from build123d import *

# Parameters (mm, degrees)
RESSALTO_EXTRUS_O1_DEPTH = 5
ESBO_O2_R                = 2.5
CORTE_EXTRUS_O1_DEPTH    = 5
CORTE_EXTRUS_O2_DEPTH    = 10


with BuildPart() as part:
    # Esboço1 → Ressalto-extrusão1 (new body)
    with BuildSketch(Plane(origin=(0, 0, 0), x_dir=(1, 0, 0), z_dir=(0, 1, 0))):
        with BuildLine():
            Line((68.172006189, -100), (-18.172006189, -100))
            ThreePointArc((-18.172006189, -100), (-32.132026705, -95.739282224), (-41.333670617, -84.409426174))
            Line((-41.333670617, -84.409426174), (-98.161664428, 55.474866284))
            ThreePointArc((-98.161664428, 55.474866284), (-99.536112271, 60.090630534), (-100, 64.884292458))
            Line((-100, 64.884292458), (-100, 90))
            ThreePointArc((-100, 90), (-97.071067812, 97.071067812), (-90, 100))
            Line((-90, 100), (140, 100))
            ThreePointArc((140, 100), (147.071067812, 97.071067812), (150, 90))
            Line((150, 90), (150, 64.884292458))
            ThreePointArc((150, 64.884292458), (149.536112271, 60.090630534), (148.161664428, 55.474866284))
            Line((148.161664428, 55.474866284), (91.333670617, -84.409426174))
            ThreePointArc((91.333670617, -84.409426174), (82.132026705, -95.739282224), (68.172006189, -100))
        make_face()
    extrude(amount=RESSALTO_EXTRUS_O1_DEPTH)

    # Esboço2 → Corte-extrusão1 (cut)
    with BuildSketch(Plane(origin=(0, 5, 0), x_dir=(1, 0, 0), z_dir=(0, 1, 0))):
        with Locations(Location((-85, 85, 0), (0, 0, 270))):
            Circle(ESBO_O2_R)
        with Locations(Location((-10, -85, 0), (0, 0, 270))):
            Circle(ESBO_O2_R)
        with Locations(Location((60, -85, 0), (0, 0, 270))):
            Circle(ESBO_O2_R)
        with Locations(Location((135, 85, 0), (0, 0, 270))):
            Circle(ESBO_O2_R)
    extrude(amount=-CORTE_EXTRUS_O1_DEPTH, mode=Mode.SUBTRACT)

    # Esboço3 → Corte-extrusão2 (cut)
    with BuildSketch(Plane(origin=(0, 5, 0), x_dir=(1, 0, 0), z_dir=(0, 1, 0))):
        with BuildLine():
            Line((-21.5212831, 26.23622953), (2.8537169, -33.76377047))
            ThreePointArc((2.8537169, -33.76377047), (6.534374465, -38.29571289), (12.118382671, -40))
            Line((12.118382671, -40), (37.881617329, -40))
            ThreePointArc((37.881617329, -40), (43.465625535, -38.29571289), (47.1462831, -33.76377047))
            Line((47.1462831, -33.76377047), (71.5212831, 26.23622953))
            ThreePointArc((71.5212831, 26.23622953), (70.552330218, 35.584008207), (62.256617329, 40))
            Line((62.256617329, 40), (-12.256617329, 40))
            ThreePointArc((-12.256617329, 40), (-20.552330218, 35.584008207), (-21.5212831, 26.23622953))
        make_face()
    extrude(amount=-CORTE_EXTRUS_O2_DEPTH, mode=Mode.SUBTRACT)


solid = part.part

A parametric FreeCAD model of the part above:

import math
import FreeCAD as App
import Part
import Sketcher
Q = App.Units.Quantity

doc = App.newDocument("Part")
body = doc.addObject("PartDesign::Body", "Body")

# Sketch on XZ plane
sketch1 = body.newObject("Sketcher::SketchObject", "Sketch")
sketch1.AttachmentSupport = (doc.getObject("XZ_Plane"), [""])
sketch1.MapMode = "FlatFace"
sketch1.addGeometry(Part.LineSegment(App.Vector(-18, 100, 0), App.Vector(68, 100, 0)), False)
sketch1.addGeometry(Part.ArcOfCircle(Part.Circle(App.Vector(68, 75, 0), App.Vector(0, 0, 1), 25), math.radians(22), math.radians(90)), False)
sketch1.addGeometry(Part.LineSegment(App.Vector(91, 84, 0), App.Vector(148, -55, 0)), False)
sketch1.addGeometry(Part.ArcOfCircle(Part.Circle(App.Vector(125, -65, 0), App.Vector(0, 0, 1), 25), math.radians(0), math.radians(22)), False)
sketch1.addGeometry(Part.LineSegment(App.Vector(150, -65, 0), App.Vector(150, -90, 0)), False)
sketch1.addGeometry(Part.ArcOfCircle(Part.Circle(App.Vector(140, -90, 0), App.Vector(0, 0, 1), 10), math.radians(-90), math.radians(0)), False)
sketch1.addGeometry(Part.LineSegment(App.Vector(140, -100, 0), App.Vector(-90, -100, 0)), False)
sketch1.addGeometry(Part.ArcOfCircle(Part.Circle(App.Vector(-90, -90, 0), App.Vector(0, 0, 1), 10), math.radians(180), math.radians(270)), False)
sketch1.addGeometry(Part.LineSegment(App.Vector(-100, -90, 0), App.Vector(-100, -65, 0)), False)
sketch1.addGeometry(Part.ArcOfCircle(Part.Circle(App.Vector(-75, -65, 0), App.Vector(0, 0, 1), 25), math.radians(158), math.radians(180)), False)
sketch1.addGeometry(Part.LineSegment(App.Vector(-98, -55, 0), App.Vector(-41, 84, 0)), False)
sketch1.addGeometry(Part.ArcOfCircle(Part.Circle(App.Vector(-18, 75, 0), App.Vector(0, 0, 1), 25), math.radians(90), math.radians(158)), False)
sketch1.addConstraint(Sketcher.Constraint("Tangent", 0, 2, 1, 2))
sketch1.addConstraint(Sketcher.Constraint("Tangent", 1, 1, 2, 1))
sketch1.addConstraint(Sketcher.Constraint("Tangent", 2, 2, 3, 2))
sketch1.addConstraint(Sketcher.Constraint("Tangent", 3, 1, 4, 1))
sketch1.addConstraint(Sketcher.Constraint("Tangent", 4, 2, 5, 2))
sketch1.addConstraint(Sketcher.Constraint("Tangent", 5, 1, 6, 1))
sketch1.addConstraint(Sketcher.Constraint("Tangent", 6, 2, 7, 2))
sketch1.addConstraint(Sketcher.Constraint("Tangent", 7, 1, 8, 1))
sketch1.addConstraint(Sketcher.Constraint("Tangent", 8, 2, 9, 2))
sketch1.addConstraint(Sketcher.Constraint("Tangent", 9, 1, 10, 1))
sketch1.addConstraint(Sketcher.Constraint("Tangent", 10, 2, 11, 2))
sketch1.addConstraint(Sketcher.Constraint("Tangent", 11, 1, 0, 1))
sketch1.addConstraint(Sketcher.Constraint("Horizontal", 0))
sketch1.addConstraint(Sketcher.Constraint("Vertical", 4))
sketch1.addConstraint(Sketcher.Constraint("Horizontal", 6))
sketch1.addConstraint(Sketcher.Constraint("Vertical", 8))
sketch1.addConstraint(Sketcher.Constraint("Equal", 1, 3))
sketch1.addConstraint(Sketcher.Constraint("Equal", 5, 7))
sketch1.addConstraint(Sketcher.Constraint("Equal", 3, 9))
sketch1.addConstraint(Sketcher.Constraint("Equal", 9, 11))
sketch1.addConstraint(Sketcher.Constraint("Horizontal", 3, 3, 9, 3))
sketch1.addConstraint(Sketcher.Constraint("Horizontal", 2, 2, 9, 1))
sketch1.addConstraint(Sketcher.Constraint("Radius", 1, Q("25 mm")))
sketch1.addConstraint(Sketcher.Constraint("Radius", 5, Q("10 mm")))
sketch1.addConstraint(Sketcher.Constraint("DistanceX", 6, 2, 6, 1, Q("230 mm")))
sketch1.addConstraint(Sketcher.Constraint("DistanceY", -1, 1, 1, 3, Q("75 mm")))
sketch1.addConstraint(Sketcher.Constraint("DistanceX", -1, 1, 3, 3, Q("125 mm")))
sketch1.addConstraint(Sketcher.Constraint("DistanceY", 5, 3, -1, 1, Q("90 mm")))
sketch1.addConstraint(Sketcher.Constraint("DistanceX", 0, 1, 0, 2, Q("86.344012 mm")))
sketch1.addConstraint(Sketcher.Constraint("DistanceY", 4, 2, 4, 1, Q("25.115708 mm")))
pad1 = body.newObject("PartDesign::Pad", "Pad")
pad1.Profile = sketch1
pad1.Length = 5
pad1.Reversed = True

# Sketch on XZ plane
sketch2 = body.newObject("Sketcher::SketchObject", "Sketch001")
sketch2.AttachmentSupport = (doc.getObject("XZ_Plane"), [""])
sketch2.MapMode = "FlatFace"
sketch2.AttachmentOffset = App.Placement(App.Vector(0, 0, -5), App.Rotation())
sketch2.addGeometry(Part.Circle(App.Vector(-85, -85, 0), App.Vector(0, 0, 1), 2.5), False)
sketch2.addGeometry(Part.Circle(App.Vector(-10, 85, 0), App.Vector(0, 0, 1), 2.5), False)
sketch2.addGeometry(Part.Circle(App.Vector(60, 85, 0), App.Vector(0, 0, 1), 2.5), False)
sketch2.addGeometry(Part.Circle(App.Vector(135, -85, 0), App.Vector(0, 0, 1), 2.5), False)
sketch2.addConstraint(Sketcher.Constraint("Equal", 0, 1))
sketch2.addConstraint(Sketcher.Constraint("Equal", 1, 2))
sketch2.addConstraint(Sketcher.Constraint("Equal", 2, 3))
sketch2.addConstraint(Sketcher.Constraint("Horizontal", 1, 3, 2, 3))
sketch2.addConstraint(Sketcher.Constraint("Horizontal", 0, 3, 3, 3))
sketch2.addConstraint(Sketcher.Constraint("Diameter", 0, Q("5 mm")))
sketch2.addConstraint(Sketcher.Constraint("DistanceX", 0, 3, -1, 1, Q("85 mm")))
sketch2.addConstraint(Sketcher.Constraint("DistanceY", 0, 3, -1, 1, Q("85 mm")))
sketch2.addConstraint(Sketcher.Constraint("DistanceX", 1, 3, -1, 1, Q("10 mm")))
sketch2.addConstraint(Sketcher.Constraint("DistanceY", -1, 1, 1, 3, Q("85 mm")))
sketch2.addConstraint(Sketcher.Constraint("DistanceX", -1, 1, 2, 3, Q("60 mm")))
sketch2.addConstraint(Sketcher.Constraint("DistanceX", -1, 1, 3, 3, Q("135 mm")))
pocket1 = body.newObject("PartDesign::Pocket", "Pocket")
pocket1.Profile = sketch2
pocket1.Length = 5
pocket1.Reversed = True

# Sketch on XZ plane
sketch3 = body.newObject("Sketcher::SketchObject", "Sketch002")
sketch3.AttachmentSupport = (doc.getObject("XZ_Plane"), [""])
sketch3.MapMode = "FlatFace"
sketch3.AttachmentOffset = App.Placement(App.Vector(0, 0, -5), App.Rotation())
sketch3.addGeometry(Part.LineSegment(App.Vector(-22, -26, 0), App.Vector(3, 34, 0)), False)
sketch3.addGeometry(Part.ArcOfCircle(Part.Circle(App.Vector(12, 30, 0), App.Vector(0, 0, 1), 10), math.radians(90), math.radians(158)), False)
sketch3.addGeometry(Part.LineSegment(App.Vector(12, 40, 0), App.Vector(38, 40, 0)), False)
sketch3.addGeometry(Part.ArcOfCircle(Part.Circle(App.Vector(38, 30, 0), App.Vector(0, 0, 1), 10), math.radians(22), math.radians(90)), False)
sketch3.addGeometry(Part.LineSegment(App.Vector(47, 34, 0), App.Vector(72, -26, 0)), False)
sketch3.addGeometry(Part.ArcOfCircle(Part.Circle(App.Vector(62, -30, 0), App.Vector(0, 0, 1), 10), math.radians(-90), math.radians(22)), False)
sketch3.addGeometry(Part.LineSegment(App.Vector(62, -40, 0), App.Vector(-12, -40, 0)), False)
sketch3.addGeometry(Part.ArcOfCircle(Part.Circle(App.Vector(-12, -30, 0), App.Vector(0, 0, 1), 10), math.radians(158), math.radians(270)), False)
sketch3.addConstraint(Sketcher.Constraint("Tangent", 0, 2, 1, 2))
sketch3.addConstraint(Sketcher.Constraint("Tangent", 1, 1, 2, 1))
sketch3.addConstraint(Sketcher.Constraint("Tangent", 2, 2, 3, 2))
sketch3.addConstraint(Sketcher.Constraint("Tangent", 3, 1, 4, 1))
sketch3.addConstraint(Sketcher.Constraint("Tangent", 4, 2, 5, 2))
sketch3.addConstraint(Sketcher.Constraint("Tangent", 5, 1, 6, 1))
sketch3.addConstraint(Sketcher.Constraint("Tangent", 6, 2, 7, 2))
sketch3.addConstraint(Sketcher.Constraint("Tangent", 7, 1, 0, 1))
sketch3.addConstraint(Sketcher.Constraint("Horizontal", 2))
sketch3.addConstraint(Sketcher.Constraint("Horizontal", 6))
sketch3.addConstraint(Sketcher.Constraint("Equal", 1, 3))
sketch3.addConstraint(Sketcher.Constraint("Equal", 3, 5))
sketch3.addConstraint(Sketcher.Constraint("Equal", 5, 7))
sketch3.addConstraint(Sketcher.Constraint("Horizontal", 0, 2, 3, 1))
sketch3.addConstraint(Sketcher.Constraint("Radius", 1, Q("10 mm")))
sketch3.addConstraint(Sketcher.Constraint("DistanceY", -1, 1, 1, 3, Q("30 mm")))
sketch3.addConstraint(Sketcher.Constraint("DistanceY", 5, 3, -1, 1, Q("30 mm")))
sketch3.addConstraint(Sketcher.Constraint("DistanceX", 3, 3, 5, 3, Q("24.375 mm")))
sketch3.addConstraint(Sketcher.Constraint("DistanceX", 0, 2, 3, 3, Q("35.0279 mm")))
sketch3.addConstraint(Sketcher.Constraint("DistanceX", -1, 1, 1, 3, Q("12.118383 mm")))
pocket2 = body.newObject("PartDesign::Pocket", "Pocket001")
pocket2.Profile = sketch3
pocket2.Length = 10
pocket2.Reversed = True

doc.recompute()
